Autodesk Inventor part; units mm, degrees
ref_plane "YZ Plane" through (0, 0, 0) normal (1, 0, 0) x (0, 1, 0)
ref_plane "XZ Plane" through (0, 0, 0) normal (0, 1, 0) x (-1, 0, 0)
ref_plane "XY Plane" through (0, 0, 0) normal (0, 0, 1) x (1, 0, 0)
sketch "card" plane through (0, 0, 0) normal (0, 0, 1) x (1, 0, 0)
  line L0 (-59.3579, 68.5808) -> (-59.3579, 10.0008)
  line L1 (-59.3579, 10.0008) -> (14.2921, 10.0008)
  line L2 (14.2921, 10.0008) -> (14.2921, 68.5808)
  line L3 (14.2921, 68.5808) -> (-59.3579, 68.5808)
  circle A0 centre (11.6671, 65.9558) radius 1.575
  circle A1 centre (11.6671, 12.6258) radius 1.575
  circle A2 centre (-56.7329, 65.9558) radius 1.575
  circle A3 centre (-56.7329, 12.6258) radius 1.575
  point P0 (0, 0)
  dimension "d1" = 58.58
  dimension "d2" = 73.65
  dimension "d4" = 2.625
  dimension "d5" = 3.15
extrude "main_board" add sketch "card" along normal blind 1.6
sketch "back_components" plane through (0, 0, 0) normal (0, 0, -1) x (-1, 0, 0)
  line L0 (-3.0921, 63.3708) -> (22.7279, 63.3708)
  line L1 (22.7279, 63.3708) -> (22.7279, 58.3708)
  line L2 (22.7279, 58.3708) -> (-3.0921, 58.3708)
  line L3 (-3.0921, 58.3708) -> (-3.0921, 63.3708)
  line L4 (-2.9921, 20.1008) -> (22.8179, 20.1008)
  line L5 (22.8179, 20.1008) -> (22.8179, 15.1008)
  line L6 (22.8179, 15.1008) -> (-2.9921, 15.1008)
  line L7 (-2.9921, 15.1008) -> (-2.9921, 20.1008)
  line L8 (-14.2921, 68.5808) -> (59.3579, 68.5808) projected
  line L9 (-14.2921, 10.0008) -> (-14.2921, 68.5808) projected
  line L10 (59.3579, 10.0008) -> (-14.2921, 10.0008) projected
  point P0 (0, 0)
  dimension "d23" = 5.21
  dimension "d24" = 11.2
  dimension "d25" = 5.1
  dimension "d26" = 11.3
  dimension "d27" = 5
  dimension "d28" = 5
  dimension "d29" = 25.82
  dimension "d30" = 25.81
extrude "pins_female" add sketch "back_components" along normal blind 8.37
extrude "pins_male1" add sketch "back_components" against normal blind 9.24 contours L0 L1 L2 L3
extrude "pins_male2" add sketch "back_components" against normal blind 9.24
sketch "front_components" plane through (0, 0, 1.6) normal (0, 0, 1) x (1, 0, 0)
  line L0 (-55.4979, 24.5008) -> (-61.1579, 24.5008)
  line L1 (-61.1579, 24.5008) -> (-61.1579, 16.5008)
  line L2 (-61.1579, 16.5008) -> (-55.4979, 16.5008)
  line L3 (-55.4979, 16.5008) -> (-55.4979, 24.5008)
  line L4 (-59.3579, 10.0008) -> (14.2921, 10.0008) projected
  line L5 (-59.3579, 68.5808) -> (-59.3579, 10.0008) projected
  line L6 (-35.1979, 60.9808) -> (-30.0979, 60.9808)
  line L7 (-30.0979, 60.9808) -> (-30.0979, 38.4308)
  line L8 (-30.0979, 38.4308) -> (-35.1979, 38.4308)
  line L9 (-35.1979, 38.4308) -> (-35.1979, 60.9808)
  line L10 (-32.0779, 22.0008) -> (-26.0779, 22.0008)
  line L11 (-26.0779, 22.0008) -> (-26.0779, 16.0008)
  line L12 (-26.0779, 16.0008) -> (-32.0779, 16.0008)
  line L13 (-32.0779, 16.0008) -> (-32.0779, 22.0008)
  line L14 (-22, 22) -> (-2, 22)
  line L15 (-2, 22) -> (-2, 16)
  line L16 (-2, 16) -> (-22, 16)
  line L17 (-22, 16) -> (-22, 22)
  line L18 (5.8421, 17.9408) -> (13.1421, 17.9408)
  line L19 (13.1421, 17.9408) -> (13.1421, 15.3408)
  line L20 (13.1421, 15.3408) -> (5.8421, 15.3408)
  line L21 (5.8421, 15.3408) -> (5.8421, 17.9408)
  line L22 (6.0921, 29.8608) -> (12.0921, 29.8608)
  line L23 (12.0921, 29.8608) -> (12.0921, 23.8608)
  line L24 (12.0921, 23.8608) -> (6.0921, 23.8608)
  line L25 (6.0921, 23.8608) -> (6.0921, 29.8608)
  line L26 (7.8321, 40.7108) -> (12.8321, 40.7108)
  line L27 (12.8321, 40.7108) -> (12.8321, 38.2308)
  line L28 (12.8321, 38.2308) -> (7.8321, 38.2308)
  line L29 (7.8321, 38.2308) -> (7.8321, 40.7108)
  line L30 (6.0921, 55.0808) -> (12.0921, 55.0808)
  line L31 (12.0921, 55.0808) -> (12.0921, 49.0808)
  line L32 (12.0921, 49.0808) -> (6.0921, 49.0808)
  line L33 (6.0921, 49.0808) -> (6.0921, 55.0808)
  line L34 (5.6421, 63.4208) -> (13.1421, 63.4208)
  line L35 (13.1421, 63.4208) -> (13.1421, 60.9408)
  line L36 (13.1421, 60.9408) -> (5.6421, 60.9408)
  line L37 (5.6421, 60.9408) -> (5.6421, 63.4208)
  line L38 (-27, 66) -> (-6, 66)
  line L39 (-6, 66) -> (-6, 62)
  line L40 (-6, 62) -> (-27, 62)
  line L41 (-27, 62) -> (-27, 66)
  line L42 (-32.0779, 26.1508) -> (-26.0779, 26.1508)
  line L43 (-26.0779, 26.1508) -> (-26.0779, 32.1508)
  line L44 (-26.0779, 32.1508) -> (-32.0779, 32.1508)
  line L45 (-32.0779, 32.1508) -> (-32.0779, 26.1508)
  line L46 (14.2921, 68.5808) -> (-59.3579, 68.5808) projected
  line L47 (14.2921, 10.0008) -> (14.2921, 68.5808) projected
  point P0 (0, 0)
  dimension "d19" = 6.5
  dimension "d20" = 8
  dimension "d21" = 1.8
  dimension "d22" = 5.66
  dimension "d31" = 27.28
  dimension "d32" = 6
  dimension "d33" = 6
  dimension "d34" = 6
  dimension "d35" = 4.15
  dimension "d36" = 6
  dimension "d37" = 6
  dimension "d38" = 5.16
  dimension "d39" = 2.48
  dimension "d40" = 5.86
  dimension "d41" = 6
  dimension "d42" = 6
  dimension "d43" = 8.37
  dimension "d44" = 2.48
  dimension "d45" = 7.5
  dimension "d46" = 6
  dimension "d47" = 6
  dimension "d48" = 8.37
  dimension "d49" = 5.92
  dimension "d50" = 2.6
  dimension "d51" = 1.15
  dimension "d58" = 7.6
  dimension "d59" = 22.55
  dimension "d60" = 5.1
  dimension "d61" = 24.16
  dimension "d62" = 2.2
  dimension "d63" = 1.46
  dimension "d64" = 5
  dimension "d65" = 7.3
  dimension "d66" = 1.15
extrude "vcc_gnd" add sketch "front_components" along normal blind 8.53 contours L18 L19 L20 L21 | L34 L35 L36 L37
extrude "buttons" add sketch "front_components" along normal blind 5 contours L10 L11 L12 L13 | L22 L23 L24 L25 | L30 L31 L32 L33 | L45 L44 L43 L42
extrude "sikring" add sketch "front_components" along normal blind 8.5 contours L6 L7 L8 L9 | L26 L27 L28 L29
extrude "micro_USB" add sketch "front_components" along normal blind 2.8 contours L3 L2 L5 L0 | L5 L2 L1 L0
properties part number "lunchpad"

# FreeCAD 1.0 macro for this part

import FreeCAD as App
import Part
import Sketcher
Q = App.Units.Quantity


def add_polygon(sketch, points):
    """Adds a closed chain of lines whose ends are joined by coincident constraints."""
    first, n = sketch.GeometryCount, len(points)
    for a, b in zip(points, points[1:] + points[:1]):
        sketch.addGeometry(Part.LineSegment(App.Vector(*a, 0), App.Vector(*b, 0)), False)
    for i in range(n):
        sketch.addConstraint(Sketcher.Constraint("Coincident", first + i, 2, first + (i + 1) % n, 1))

doc = App.newDocument("Part")
body = doc.addObject("PartDesign::Body", "Body")

sketch1 = body.newObject("Sketcher::SketchObject", "Sketch")
sketch1.AttachmentSupport = (doc.getObject("XY_Plane"), [""])
sketch1.MapMode = "FlatFace"
add_polygon(sketch1, [(14.3, 68.6), (-59.4, 68.6), (-59.4, 10), (14.3, 10)])
sketch1.addGeometry(Part.Circle(App.Vector(-56.7, 12.6, 0), App.Vector(0, 0, 1), 1.6), False)
sketch1.addGeometry(Part.Circle(App.Vector(11.7, 12.6, 0), App.Vector(0, 0, 1), 1.6), False)
sketch1.addGeometry(Part.Circle(App.Vector(-56.7, 66, 0), App.Vector(0, 0, 1), 1.6), False)
sketch1.addGeometry(Part.Circle(App.Vector(11.7, 66, 0), App.Vector(0, 0, 1), 1.6), False)
sketch1.addConstraint([
    Sketcher.Constraint("Horizontal", 0),
    Sketcher.Constraint("Vertical", 1),
    Sketcher.Constraint("Horizontal", 2),
    Sketcher.Constraint("Vertical", 3),
    Sketcher.Constraint("Equal", 4, 5),
    Sketcher.Constraint("Equal", 5, 6),
    Sketcher.Constraint("Equal", 6, 7),
    Sketcher.Constraint("Horizontal", 4, 3, 5, 3),
    Sketcher.Constraint("Horizontal", 6, 3, 7, 3),
    Sketcher.Constraint("Vertical", 4, 3, 6, 3),
    Sketcher.Constraint("Vertical", 5, 3, 7, 3),
    Sketcher.Constraint("Diameter", 4, Q("3.15 mm")),
    Sketcher.Constraint("DistanceX", 0, 2, 0, 1, Q("73.65 mm")),
    Sketcher.Constraint("DistanceY", 1, 2, 1, 1, Q("58.58 mm")),
    Sketcher.Constraint("DistanceX", 0, 2, 6, 3, Q("2.625 mm")),
    Sketcher.Constraint("DistanceY", 6, 3, 0, 2, Q("2.625 mm")),
    Sketcher.Constraint("DistanceY", 1, 2, 4, 3, Q("2.625 mm")),
    Sketcher.Constraint("DistanceX", 5, 3, 2, 2, Q("2.625 mm")),
    Sketcher.Constraint("DistanceX", 4, 3, -1, 1, Q("56.733 mm")),
    Sketcher.Constraint("DistanceY", -1, 1, 4, 3, Q("12.6258 mm")),
])
pad1 = body.newObject("PartDesign::Pad", "Pad")
pad1.Profile = sketch1
pad1.Length = 1.6

sketch2 = body.newObject("Sketcher::SketchObject", "Sketch001")
sketch2.AttachmentSupport = (doc.getObject("XY_Plane"), [""])
sketch2.MapMode = "FlatFace"
add_polygon(sketch2, [(-23, 63), (3, 63), (3, 58), (-23, 58)])
add_polygon(sketch2, [(-23, 20), (3, 20), (3, 15), (-23, 15)])
sketch2.addConstraint([
    Sketcher.Constraint("Horizontal", 0),
    Sketcher.Constraint("Vertical", 1),
    Sketcher.Constraint("Horizontal", 2),
    Sketcher.Constraint("Vertical", 3),
    Sketcher.Constraint("Horizontal", 4),
    Sketcher.Constraint("Vertical", 5),
    Sketcher.Constraint("Horizontal", 6),
    Sketcher.Constraint("Vertical", 7),
    Sketcher.Constraint("Equal", 3, 5),
    Sketcher.Constraint("DistanceY", 1, 2, 1, 1, Q("5 mm")),
    Sketcher.Constraint("DistanceX", 0, 1, 0, 2, Q("25.82 mm")),
    Sketcher.Constraint("DistanceX", 4, 1, 4, 2, Q("25.81 mm")),
    Sketcher.Constraint("DistanceX", 4, 2, 1, 2, Q("0.1 mm")),
    Sketcher.Constraint("DistanceY", 4, 2, 1, 2, Q("38.27 mm")),
    Sketcher.Constraint("DistanceX", -1, 1, 0, 2, Q("3.092 mm")),
    Sketcher.Constraint("DistanceY", -1, 1, 0, 2, Q("63.3708 mm")),
])
pad2 = body.newObject("PartDesign::Pad", "Pad001")
pad2.Profile = sketch2
pad2.Length = 8.37
pad2.Reversed = True

sketch3 = body.newObject("Sketcher::SketchObject", "Sketch002")
sketch3.AttachmentSupport = (doc.getObject("XY_Plane"), [""])
sketch3.MapMode = "FlatFace"
add_polygon(sketch3, [(-23, 63), (3, 63), (3, 58), (-23, 58)])
sketch3.addConstraint([
    Sketcher.Constraint("Horizontal", 0),
    Sketcher.Constraint("Vertical", 1),
    Sketcher.Constraint("Horizontal", 2),
    Sketcher.Constraint("Vertical", 3),
    Sketcher.Constraint("DistanceY", 1, 2, 1, 1, Q("5 mm")),
    Sketcher.Constraint("DistanceX", 0, 1, 0, 2, Q("25.82 mm")),
    Sketcher.Constraint("DistanceX", -1, 1, 0, 2, Q("3.092 mm")),
    Sketcher.Constraint("DistanceY", -1, 1, 0, 2, Q("63.3708 mm")),
])
pad3 = body.newObject("PartDesign::Pad", "Pad002")
pad3.Profile = sketch3
pad3.Length = 9.24

sketch4 = body.newObject("Sketcher::SketchObject", "Sketch003")
sketch4.AttachmentSupport = (doc.getObject("XY_Plane"), [""])
sketch4.MapMode = "FlatFace"
add_polygon(sketch4, [(-23, 63), (3, 63), (3, 58), (-23, 58)])
add_polygon(sketch4, [(-23, 20), (3, 20), (3, 15), (-23, 15)])
sketch4.addConstraint([
    Sketcher.Constraint("Horizontal", 0),
    Sketcher.Constraint("Vertical", 1),
    Sketcher.Constraint("Horizontal", 2),
    Sketcher.Constraint("Vertical", 3),
    Sketcher.Constraint("Horizontal", 4),
    Sketcher.Constraint("Vertical", 5),
    Sketcher.Constraint("Horizontal", 6),
    Sketcher.Constraint("Vertical", 7),
    Sketcher.Constraint("Equal", 3, 5),
    Sketcher.Constraint("DistanceY", 1, 2, 1, 1, Q("5 mm")),
    Sketcher.Constraint("DistanceX", 0, 1, 0, 2, Q("25.82 mm")),
    Sketcher.Constraint("DistanceX", 4, 1, 4, 2, Q("25.81 mm")),
    Sketcher.Constraint("DistanceX", 4, 2, 1, 2, Q("0.1 mm")),
    Sketcher.Constraint("DistanceY", 4, 2, 1, 2, Q("38.27 mm")),
    Sketcher.Constraint("DistanceX", -1, 1, 0, 2, Q("3.092 mm")),
    Sketcher.Constraint("DistanceY", -1, 1, 0, 2, Q("63.3708 mm")),
])
pad4 = body.newObject("PartDesign::Pad", "Pad003")
pad4.Profile = sketch4
pad4.Length = 9.24

sketch5 = body.newObject("Sketcher::SketchObject", "Sketch004")
sketch5.AttachmentSupport = (doc.getObject("XY_Plane"), [""])
sketch5.MapMode = "FlatFace"
sketch5.AttachmentOffset = App.Placement(App.Vector(0, 0, 1.6), App.Rotation())
add_polygon(sketch5, [(13.1, 17.9), (5.8, 17.9), (5.8, 15.3), (13.1, 15.3)])
add_polygon(sketch5, [(13.1, 63.4), (5.6, 63.4), (5.6, 60.9), (13.1, 60.9)])
sketch5.addConstraint([
    Sketcher.Constraint("Horizontal", 0),
    Sketcher.Constraint("Vertical", 1),
    Sketcher.Constraint("Horizontal", 2),
    Sketcher.Constraint("Vertical", 3),
    Sketcher.Constraint("Horizontal", 4),
    Sketcher.Constraint("Vertical", 5),
    Sketcher.Constraint("Horizontal", 6),
    Sketcher.Constraint("Vertical", 7),
    Sketcher.Constraint("Vertical", 3, 2, 6, 2),
    Sketcher.Constraint("DistanceX", 0, 2, 0, 1, Q("7.3 mm")),
    Sketcher.Constraint("DistanceX", 4, 2, 4, 1, Q("7.5 mm")),
    Sketcher.Constraint("DistanceY", 1, 2, 1, 1, Q("2.6 mm")),
    Sketcher.Constraint("DistanceY", 5, 2, 5, 1, Q("2.48 mm")),
    Sketcher.Constraint("DistanceY", 0, 2, 5, 2, Q("43 mm")),
    Sketcher.Constraint("DistanceX", -1, 1, 0, 2, Q("5.842 mm")),
    Sketcher.Constraint("DistanceY", -1, 1, 0, 2, Q("17.9408 mm")),
])
pad5 = body.newObject("PartDesign::Pad", "Pad004")
pad5.Profile = sketch5
pad5.Length = 8.53

sketch6 = body.newObject("Sketcher::SketchObject", "Sketch005")
sketch6.AttachmentSupport = (doc.getObject("XY_Plane"), [""])
sketch6.MapMode = "FlatFace"
sketch6.AttachmentOffset = App.Placement(App.Vector(0, 0, 1.6), App.Rotation())
add_polygon(sketch6, [(-26, 22), (-32, 22), (-32, 16), (-26, 16)])
add_polygon(sketch6, [(12, 30), (6, 30), (6, 24), (12, 24)])
add_polygon(sketch6, [(12, 55), (6, 55), (6, 49), (12, 49)])
add_polygon(sketch6, [(-32, 32), (-32, 26), (-26, 26), (-26, 32)])
sketch6.addConstraint([
    Sketcher.Constraint("Horizontal", 0),
    Sketcher.Constraint("Vertical", 1),
    Sketcher.Constraint("Horizontal", 2),
    Sketcher.Constraint("Vertical", 3),
    Sketcher.Constraint("Horizontal", 4),
    Sketcher.Constraint("Vertical", 5),
    Sketcher.Constraint("Horizontal", 6),
    Sketcher.Constraint("Vertical", 7),
    Sketcher.Constraint("Horizontal", 8),
    Sketcher.Constraint("Vertical", 9),
    Sketcher.Constraint("Horizontal", 10),
    Sketcher.Constraint("Vertical", 11),
    Sketcher.Constraint("Vertical", 12),
    Sketcher.Constraint("Horizontal", 13),
    Sketcher.Constraint("Vertical", 14),
    Sketcher.Constraint("Horizontal", 15),
    Sketcher.Constraint("Vertical", 5, 2, 8, 2),
    Sketcher.Constraint("Vertical", 7, 2, 10, 2),
    Sketcher.Constraint("Vertical", 1, 2, 12, 2),
    Sketcher.Constraint("Vertical", 3, 2, 13, 2),
    Sketcher.Constraint("Equal", 2, 4),
    Sketcher.Constraint("Equal", 15, 1),
    Sketcher.Constraint("Equal", 3, 5),
    Sketcher.Constraint("Equal", 7, 9),
    Sketcher.Constraint("Equal", 11, 12),
    Sketcher.Constraint("DistanceX", 0, 2, 0, 1, Q("6 mm")),
    Sketcher.Constraint("DistanceY", 0, 2, 12, 2, Q("4.15 mm")),
    Sketcher.Constraint("DistanceX", 3, 2, 4, 2, Q("32.17 mm")),
    Sketcher.Constraint("DistanceY", 3, 2, 4, 2, Q("7.86 mm")),
    Sketcher.Constraint("DistanceY", 4, 2, 8, 2, Q("25.22 mm")),
    Sketcher.Constraint("DistanceX", 0, 2, -1, 1, Q("32.078 mm")),
    Sketcher.Constraint("DistanceY", -1, 1, 0, 2, Q("22.0008 mm")),
])
pad6 = body.newObject("PartDesign::Pad", "Pad005")
pad6.Profile = sketch6
pad6.Length = 5

sketch7 = body.newObject("Sketcher::SketchObject", "Sketch006")
sketch7.AttachmentSupport = (doc.getObject("XY_Plane"), [""])
sketch7.MapMode = "FlatFace"
sketch7.AttachmentOffset = App.Placement(App.Vector(0, 0, 1.6), App.Rotation())
add_polygon(sketch7, [(-30.1, 61), (-35.2, 61), (-35.2, 38.4), (-30.1, 38.4)])
add_polygon(sketch7, [(12.8, 40.7), (7.8, 40.7), (7.8, 38.2), (12.8, 38.2)])
sketch7.addConstraint([
    Sketcher.Constraint("Horizontal", 0),
    Sketcher.Constraint("Vertical", 1),
    Sketcher.Constraint("Horizontal", 2),
    Sketcher.Constraint("Vertical", 3),
    Sketcher.Constraint("Horizontal", 4),
    Sketcher.Constraint("Vertical", 5),
    Sketcher.Constraint("Horizontal", 6),
    Sketcher.Constraint("Vertical", 7),
    Sketcher.Constraint("DistanceX", 4, 2, 4, 1, Q("5 mm")),
    Sketcher.Constraint("DistanceX", 0, 2, 0, 1, Q("5.1 mm")),
    Sketcher.Constraint("DistanceY", 1, 2, 1, 1, Q("22.55 mm")),
    Sketcher.Constraint("DistanceY", 5, 2, 5, 1, Q("2.48 mm")),
    Sketcher.Constraint("DistanceY", 5, 2, 2, 2, Q("0.2 mm")),
    Sketcher.Constraint("DistanceX", 2, 2, 4, 2, Q("37.93 mm")),
    Sketcher.Constraint("DistanceX", 0, 2, -1, 1, Q("35.198 mm")),
    Sketcher.Constraint("DistanceY", -1, 1, 0, 2, Q("60.9808 mm")),
])
pad7 = body.newObject("PartDesign::Pad", "Pad006")
pad7.Profile = sketch7
pad7.Length = 8.5

sketch8 = body.newObject("Sketcher::SketchObject", "Sketch007")
sketch8.AttachmentSupport = (doc.getObject("XY_Plane"), [""])
sketch8.MapMode = "FlatFace"
sketch8.AttachmentOffset = App.Placement(App.Vector(0, 0, 1.6), App.Rotation())
add_polygon(sketch8, [(-55, 17), (-55, 25), (-61, 25), (-61, 17)])
sketch8.addConstraint([
    Sketcher.Constraint("Vertical", 0),
    Sketcher.Constraint("Horizontal", 1),
    Sketcher.Constraint("Vertical", 2),
    Sketcher.Constraint("Horizontal", 3),
    Sketcher.Constraint("DistanceY", 0, 1, 0, 2, Q("8 mm")),
    Sketcher.Constraint("DistanceX", 1, 2, 1, 1, Q("5.66 mm")),
    Sketcher.Constraint("DistanceX", 0, 2, -1, 1, Q("55.498 mm")),
    Sketcher.Constraint("DistanceY", -1, 1, 0, 2, Q("24.5008 mm")),
])
pad8 = body.newObject("PartDesign::Pad", "Pad007")
pad8.Profile = sketch8
pad8.Length = 2.8

doc.recompute()
